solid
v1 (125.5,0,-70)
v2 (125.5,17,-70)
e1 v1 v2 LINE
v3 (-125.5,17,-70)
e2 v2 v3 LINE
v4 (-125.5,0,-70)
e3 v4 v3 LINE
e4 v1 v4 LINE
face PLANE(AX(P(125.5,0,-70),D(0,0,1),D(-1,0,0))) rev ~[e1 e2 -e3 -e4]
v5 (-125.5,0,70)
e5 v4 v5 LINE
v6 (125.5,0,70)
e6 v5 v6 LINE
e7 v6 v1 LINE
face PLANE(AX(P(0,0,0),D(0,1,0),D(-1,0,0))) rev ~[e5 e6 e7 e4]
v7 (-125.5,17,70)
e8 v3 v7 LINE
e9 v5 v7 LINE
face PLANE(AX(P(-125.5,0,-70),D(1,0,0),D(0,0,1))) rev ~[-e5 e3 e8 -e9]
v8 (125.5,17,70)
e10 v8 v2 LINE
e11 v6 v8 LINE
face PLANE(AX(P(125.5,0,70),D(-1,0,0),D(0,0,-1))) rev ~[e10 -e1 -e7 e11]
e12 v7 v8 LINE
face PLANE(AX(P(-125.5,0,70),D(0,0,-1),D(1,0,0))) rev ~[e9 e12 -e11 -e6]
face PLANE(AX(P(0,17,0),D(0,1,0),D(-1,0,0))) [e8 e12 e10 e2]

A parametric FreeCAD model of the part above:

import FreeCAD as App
import Part
import Sketcher
from FreeCAD import Vector

doc = App.newDocument("Part")
params = doc.addObject("Spreadsheet::Sheet", "Params")
for row, (alias, value) in enumerate([
    ("sketch1_width", "251 mm"),
    ("sketch1_height", "140 mm"),
    ("pad1_length", "17 mm"),
], start=1):
    params.set(f"A{row}", alias)
    params.set(f"B{row}", "=" + value)
    params.setAlias(f"B{row}", alias)

body = doc.addObject("PartDesign::Body", "Body")

sketch1 = body.newObject("Sketcher::SketchObject", "Sketch")
sketch1.AttachmentSupport = (doc.getObject("XZ_Plane"), [""])
sketch1.MapMode = "FlatFace"
sketch1.addGeometry([
    Part.LineSegment(Vector(126, 70, 0), Vector(126, -70, 0)),
    Part.LineSegment(Vector(126, -70, 0), Vector(-126, -70, 0)),
    Part.LineSegment(Vector(-126, -70, 0), Vector(-126, 70, 0)),
    Part.LineSegment(Vector(-126, 70, 0), Vector(126, 70, 0)),
], False)
sketch1.addConstraint([
    Sketcher.Constraint("Coincident", 0, 2, 1, 1),
    Sketcher.Constraint("Coincident", 1, 2, 2, 1),
    Sketcher.Constraint("Coincident", 2, 2, 3, 1),
    Sketcher.Constraint("Coincident", 3, 2, 0, 1),
    Sketcher.Constraint("Vertical", 0),
    Sketcher.Constraint("Horizontal", 1),
    Sketcher.Constraint("Vertical", 2),
    Sketcher.Constraint("Horizontal", 3),
    Sketcher.Constraint("Symmetric", 0, 2, 2, 2, -1, 1),
    Sketcher.Constraint("DistanceX", 1, 2, 1, 1, 251.0),
    Sketcher.Constraint("DistanceY", 0, 2, 0, 1, 140.0),
])
sketch1.setExpression("Constraints[9]", "Params.sketch1_width")
sketch1.setExpression("Constraints[10]", "Params.sketch1_height")
pad1 = body.newObject("PartDesign::Pad", "Pad")
pad1.Profile = sketch1
pad1.setExpression("Length", "Params.pad1_length")
pad1.Reversed = True

doc.recompute()
